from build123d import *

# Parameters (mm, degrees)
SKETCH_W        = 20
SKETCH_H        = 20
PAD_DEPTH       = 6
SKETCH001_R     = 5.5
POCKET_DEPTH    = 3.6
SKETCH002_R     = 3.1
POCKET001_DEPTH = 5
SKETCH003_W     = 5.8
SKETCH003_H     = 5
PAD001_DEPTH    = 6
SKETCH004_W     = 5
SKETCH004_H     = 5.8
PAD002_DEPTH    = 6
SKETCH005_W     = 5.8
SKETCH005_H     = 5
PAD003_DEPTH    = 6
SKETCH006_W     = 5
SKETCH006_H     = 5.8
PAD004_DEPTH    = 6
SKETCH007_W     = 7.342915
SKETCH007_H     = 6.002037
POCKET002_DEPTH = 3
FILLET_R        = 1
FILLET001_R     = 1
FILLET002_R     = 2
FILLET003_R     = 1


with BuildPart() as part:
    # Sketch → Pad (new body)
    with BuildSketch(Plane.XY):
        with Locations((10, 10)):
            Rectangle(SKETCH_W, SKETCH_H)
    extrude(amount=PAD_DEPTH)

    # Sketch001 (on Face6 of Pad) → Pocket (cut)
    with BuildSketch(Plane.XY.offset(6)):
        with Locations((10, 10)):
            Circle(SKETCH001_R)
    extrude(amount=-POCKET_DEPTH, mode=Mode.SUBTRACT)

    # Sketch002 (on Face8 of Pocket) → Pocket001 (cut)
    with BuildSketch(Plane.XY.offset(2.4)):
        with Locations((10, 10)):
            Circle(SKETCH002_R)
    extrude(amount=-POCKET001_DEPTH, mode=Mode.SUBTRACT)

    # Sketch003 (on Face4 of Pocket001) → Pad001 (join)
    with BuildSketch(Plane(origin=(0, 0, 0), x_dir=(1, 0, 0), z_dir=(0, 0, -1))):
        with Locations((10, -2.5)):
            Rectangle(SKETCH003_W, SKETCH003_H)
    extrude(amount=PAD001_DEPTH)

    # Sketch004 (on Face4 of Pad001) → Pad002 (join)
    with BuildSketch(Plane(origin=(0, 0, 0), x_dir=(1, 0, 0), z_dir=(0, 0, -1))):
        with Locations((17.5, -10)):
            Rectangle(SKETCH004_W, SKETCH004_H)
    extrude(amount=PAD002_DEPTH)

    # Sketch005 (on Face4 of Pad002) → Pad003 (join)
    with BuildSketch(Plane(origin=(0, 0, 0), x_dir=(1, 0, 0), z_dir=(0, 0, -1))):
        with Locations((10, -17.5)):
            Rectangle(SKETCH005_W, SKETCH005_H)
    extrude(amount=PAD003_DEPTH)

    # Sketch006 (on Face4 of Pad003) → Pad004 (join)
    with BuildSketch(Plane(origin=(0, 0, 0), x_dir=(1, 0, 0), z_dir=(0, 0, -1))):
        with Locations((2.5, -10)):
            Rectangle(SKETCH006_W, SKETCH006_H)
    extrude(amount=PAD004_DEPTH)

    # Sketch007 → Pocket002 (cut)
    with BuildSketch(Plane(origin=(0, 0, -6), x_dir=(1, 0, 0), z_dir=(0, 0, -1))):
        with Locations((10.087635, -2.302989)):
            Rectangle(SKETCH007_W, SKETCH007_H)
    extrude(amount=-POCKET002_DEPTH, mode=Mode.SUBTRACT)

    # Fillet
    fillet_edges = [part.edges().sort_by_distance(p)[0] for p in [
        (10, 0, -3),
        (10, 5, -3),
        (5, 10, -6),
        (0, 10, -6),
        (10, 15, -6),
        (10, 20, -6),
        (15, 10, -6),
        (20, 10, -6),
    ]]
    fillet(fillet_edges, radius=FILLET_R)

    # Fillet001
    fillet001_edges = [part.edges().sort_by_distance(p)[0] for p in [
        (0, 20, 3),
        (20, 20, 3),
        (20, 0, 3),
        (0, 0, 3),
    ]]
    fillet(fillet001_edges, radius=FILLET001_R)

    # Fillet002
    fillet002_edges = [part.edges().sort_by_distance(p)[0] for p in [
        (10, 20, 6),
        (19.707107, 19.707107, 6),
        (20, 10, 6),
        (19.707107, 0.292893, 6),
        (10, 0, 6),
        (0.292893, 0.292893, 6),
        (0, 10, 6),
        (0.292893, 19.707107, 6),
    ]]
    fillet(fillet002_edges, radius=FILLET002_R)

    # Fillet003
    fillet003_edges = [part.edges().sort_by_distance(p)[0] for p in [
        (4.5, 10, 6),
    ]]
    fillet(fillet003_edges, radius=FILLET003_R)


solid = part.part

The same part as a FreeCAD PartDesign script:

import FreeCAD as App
import Part
import Sketcher
from FreeCAD import Vector


def edges_at(feature, points):
    """Names of the edges that pass closest to the given points."""
    edges = feature.Shape.Edges
    near = lambda p: min(range(len(edges)), key=lambda i: edges[i].distToShape(Part.Vertex(*p))[0])
    return sorted({f"Edge{near(p) + 1}" for p in points})


def add_polygon(sketch, points):
    """Adds a closed chain of lines whose ends are joined by coincident constraints."""
    first, n = sketch.GeometryCount, len(points)
    for a, b in zip(points, points[1:] + points[:1]):
        sketch.addGeometry(Part.LineSegment(App.Vector(*a, 0), App.Vector(*b, 0)), False)
    for i in range(n):
        sketch.addConstraint(Sketcher.Constraint("Coincident", first + i, 2, first + (i + 1) % n, 1))

doc = App.newDocument("Part")
params = doc.addObject("Spreadsheet::Sheet", "Params")
for row, (alias, value) in enumerate([
    ("sketch1_width", "20 mm"),
    ("pad1_length", "6 mm"),
    ("sketch2_diameter", "11 mm"),
    ("pocket1_length", "3.6 mm"),
    ("sketch3_diameter", "6.2 mm"),
    ("pocket2_length", "5 mm"),
    ("sketch4_height", "5 mm"),
    ("sketch4_width", "5.8 mm"),
    ("pad2_length", "6 mm"),
    ("sketch5_width", "5 mm"),
    ("sketch5_height", "5.8 mm"),
    ("pad3_length", "6 mm"),
    ("sketch6_height", "5 mm"),
    ("sketch6_width", "5.8 mm"),
    ("pad4_length", "6 mm"),
    ("sketch7_width", "5 mm"),
    ("sketch7_height", "5.8 mm"),
    ("pad5_length", "6 mm"),
    ("pocket3_length", "3 mm"),
    ("fillet_radius", "1 mm"),
    ("fillet2_radius", "1 mm"),
    ("fillet3_radius", "2 mm"),
    ("fillet4_radius", "1 mm"),
], start=1):
    params.set(f"A{row}", alias)
    params.set(f"B{row}", "=" + value)
    params.setAlias(f"B{row}", alias)

body = doc.addObject("PartDesign::Body", "Body")

sketch1 = body.newObject("Sketcher::SketchObject", "Sketch")
sketch1.AttachmentSupport = (doc.getObject("XY_Plane"), [""])
sketch1.MapMode = "FlatFace"
add_polygon(sketch1, [(0, 20), (0, 0), (20, 0), (20, 20)])
sketch1.addConstraint([
    Sketcher.Constraint("Vertical", 0),
    Sketcher.Constraint("Horizontal", 1),
    Sketcher.Constraint("Vertical", 2),
    Sketcher.Constraint("Horizontal", 3),
    Sketcher.Constraint("Coincident", 0, 2, -1, 1),
    Sketcher.Constraint("Equal", 3, 0),
    Sketcher.Constraint("DistanceX", 1, 1, 1, 2, 20.0),
])
sketch1.setExpression("Constraints[10]", "Params.sketch1_width")
pad1 = body.newObject("PartDesign::Pad", "Pad")
pad1.Profile = sketch1
pad1.setExpression("Length", "Params.pad1_length")

sketch2 = body.newObject("Sketcher::SketchObject", "Sketch001")
sketch2.AttachmentSupport = (doc.getObject("XY_Plane"), [""])
sketch2.MapMode = "FlatFace"
sketch2.AttachmentOffset = App.Placement(Vector(0, 0, 6), App.Rotation())
sketch2.addGeometry(Part.Circle(Vector(10, 10, 0), Vector(0, 0, 1), 6), False)
sketch2.addConstraint([
    Sketcher.Constraint("Diameter", 0, 11.0),
    Sketcher.Constraint("DistanceX", -1, 1, 0, 3, 10.0),
    Sketcher.Constraint("DistanceY", -1, 1, 0, 3, 10.0),
])
sketch2.setExpression("Constraints[0]", "Params.sketch2_diameter")
pocket1 = body.newObject("PartDesign::Pocket", "Pocket")
pocket1.Profile = sketch2
pocket1.setExpression("Length", "Params.pocket1_length")

sketch3 = body.newObject("Sketcher::SketchObject", "Sketch002")
sketch3.AttachmentSupport = (doc.getObject("XY_Plane"), [""])
sketch3.MapMode = "FlatFace"
sketch3.AttachmentOffset = App.Placement(Vector(0, 0, 2.4), App.Rotation())
sketch3.addGeometry(Part.Circle(Vector(10, 10, 0), Vector(0, 0, 1), 3.1), False)
sketch3.addConstraint([
    Sketcher.Constraint("Diameter", 0, 6.2),
    Sketcher.Constraint("DistanceX", -1, 1, 0, 3, 10.0),
    Sketcher.Constraint("DistanceY", -1, 1, 0, 3, 10.0),
])
sketch3.setExpression("Constraints[0]", "Params.sketch3_diameter")
pocket2 = body.newObject("PartDesign::Pocket", "Pocket001")
pocket2.Profile = sketch3
pocket2.setExpression("Length", "Params.pocket2_length")

sketch4 = body.newObject("Sketcher::SketchObject", "Sketch003")
sketch4.AttachmentSupport = (doc.getObject("XY_Plane"), [""])
sketch4.MapMode = "FlatFace"
add_polygon(sketch4, [(7, 0), (7, 5), (13, 5), (13, 0)])
sketch4.addConstraint([
    Sketcher.Constraint("Vertical", 0),
    Sketcher.Constraint("Horizontal", 1),
    Sketcher.Constraint("Vertical", 2),
    Sketcher.Constraint("Horizontal", 3),
    Sketcher.Constraint("PointOnObject", 2, 2, -1),
    Sketcher.Constraint("DistanceY", 0, 1, 0, 2, 5.0),
    Sketcher.Constraint("DistanceX", 1, 1, 1, 2, 5.8),
    Sketcher.Constraint("DistanceX", -1, 1, 0, 2, 7.1),
])
sketch4.setExpression("Constraints[9]", "Params.sketch4_height")
sketch4.setExpression("Constraints[10]", "Params.sketch4_width")
pad2 = body.newObject("PartDesign::Pad", "Pad001")
pad2.Profile = sketch4
pad2.setExpression("Length", "Params.pad2_length")
pad2.Reversed = True

sketch5 = body.newObject("Sketcher::SketchObject", "Sketch004")
sketch5.AttachmentSupport = (doc.getObject("XY_Plane"), [""])
sketch5.MapMode = "FlatFace"
add_polygon(sketch5, [(15, 7), (15, 13), (20, 13), (20, 7)])
sketch5.addConstraint([
    Sketcher.Constraint("Vertical", 0),
    Sketcher.Constraint("Horizontal", 1),
    Sketcher.Constraint("Vertical", 2),
    Sketcher.Constraint("Horizontal", 3),
    Sketcher.Constraint("DistanceX", 1, 1, 1, 2, 5.0),
    Sketcher.Constraint("DistanceY", 0, 1, 0, 2, 5.8),
    Sketcher.Constraint("DistanceX", -1, 1, 0, 2, 15.0),
    Sketcher.Constraint("DistanceY", -1, 1, 0, 2, 12.9),
])
sketch5.setExpression("Constraints[8]", "Params.sketch5_width")
sketch5.setExpression("Constraints[9]", "Params.sketch5_height")
pad3 = body.newObject("PartDesign::Pad", "Pad002")
pad3.Profile = sketch5
pad3.setExpression("Length", "Params.pad3_length")
pad3.Reversed = True

sketch6 = body.newObject("Sketcher::SketchObject", "Sketch005")
sketch6.AttachmentSupport = (doc.getObject("XY_Plane"), [""])
sketch6.MapMode = "FlatFace"
add_polygon(sketch6, [(7, 15), (7, 20), (13, 20), (13, 15)])
sketch6.addConstraint([
    Sketcher.Constraint("Vertical", 0),
    Sketcher.Constraint("Horizontal", 1),
    Sketcher.Constraint("Vertical", 2),
    Sketcher.Constraint("Horizontal", 3),
    Sketcher.Constraint("DistanceY", 0, 1, 0, 2, 5.0),
    Sketcher.Constraint("DistanceX", 1, 1, 1, 2, 5.8),
    Sketcher.Constraint("DistanceY", -1, 1, 0, 2, 20.0),
    Sketcher.Constraint("DistanceX", -1, 1, 0, 2, 7.1),
])
sketch6.setExpression("Constraints[8]", "Params.sketch6_height")
sketch6.setExpression("Constraints[9]", "Params.sketch6_width")
pad4 = body.newObject("PartDesign::Pad", "Pad003")
pad4.Profile = sketch6
pad4.setExpression("Length", "Params.pad4_length")
pad4.Reversed = True

sketch7 = body.newObject("Sketcher::SketchObject", "Sketch006")
sketch7.AttachmentSupport = (doc.getObject("XY_Plane"), [""])
sketch7.MapMode = "FlatFace"
add_polygon(sketch7, [(0, 7), (0, 13), (5, 13), (5, 7)])
sketch7.addConstraint([
    Sketcher.Constraint("Vertical", 0),
    Sketcher.Constraint("Horizontal", 1),
    Sketcher.Constraint("Vertical", 2),
    Sketcher.Constraint("Horizontal", 3),
    Sketcher.Constraint("PointOnObject", 0, 2, -2),
    Sketcher.Constraint("DistanceX", 1, 1, 1, 2, 5.0),
    Sketcher.Constraint("DistanceY", 0, 1, 0, 2, 5.8),
    Sketcher.Constraint("DistanceY", -1, 1, 0, 2, 12.9),
])
sketch7.setExpression("Constraints[9]", "Params.sketch7_width")
sketch7.setExpression("Constraints[10]", "Params.sketch7_height")
pad5 = body.newObject("PartDesign::Pad", "Pad004")
pad5.Profile = sketch7
pad5.setExpression("Length", "Params.pad5_length")
pad5.Reversed = True

sketch8 = body.newObject("Sketcher::SketchObject", "Sketch007")
sketch8.AttachmentSupport = (doc.getObject("XY_Plane"), [""])
sketch8.MapMode = "FlatFace"
sketch8.AttachmentOffset = App.Placement(Vector(0, 0, -6), App.Rotation())
add_polygon(sketch8, [(6, -1), (6, 5), (14, 5), (14, -1)])
sketch8.addConstraint([
    Sketcher.Constraint("Vertical", 0),
    Sketcher.Constraint("Horizontal", 1),
    Sketcher.Constraint("Vertical", 2),
    Sketcher.Constraint("Horizontal", 3),
    Sketcher.Constraint("DistanceX", 1, 1, 1, 2, 7.342915),
    Sketcher.Constraint("DistanceY", 0, 1, 0, 2, 6.002037),
    Sketcher.Constraint("DistanceY", 2, 2, -1, 1, 0.698029),
    Sketcher.Constraint("DistanceX", -1, 1, 0, 2, 6.416177),
])
pocket3 = body.newObject("PartDesign::Pocket", "Pocket002")
pocket3.Profile = sketch8
pocket3.setExpression("Length", "Params.pocket3_length")
pocket3.Reversed = True
doc.recompute()

fillet = body.newObject("PartDesign::Fillet", "Fillet")
fillet.Base = (pocket3, edges_at(pocket3, [
    (10, 0, -3),
    (10, 5, -3),
    (5, 10, -6),
    (0, 10, -6),
    (10, 15, -6),
    (10, 20, -6),
    (15, 10, -6),
    (20, 10, -6),
]))
fillet.setExpression("Radius", "Params.fillet_radius")
doc.recompute()

fillet2 = body.newObject("PartDesign::Fillet", "Fillet001")
fillet2.Base = (fillet, edges_at(fillet, [
    (0, 20, 3),
    (20, 20, 3),
    (20, 0, 3),
    (0, 0, 3),
]))
fillet2.setExpression("Radius", "Params.fillet2_radius")
doc.recompute()

fillet3 = body.newObject("PartDesign::Fillet", "Fillet002")
fillet3.Base = (fillet2, edges_at(fillet2, [
    (10, 20, 6),
    (19.707, 19.707, 6),
    (20, 10, 6),
    (19.707, 0.293, 6),
    (10, 0, 6),
    (0.293, 0.293, 6),
    (0, 10, 6),
    (0.293, 19.707, 6),
]))
fillet3.setExpression("Radius", "Params.fillet3_radius")
doc.recompute()

fillet4 = body.newObject("PartDesign::Fillet", "Fillet003")
fillet4.Base = (fillet3, edges_at(fillet3, [(4.5, 10, 6)]))
fillet4.setExpression("Radius", "Params.fillet4_radius")

doc.recompute()
